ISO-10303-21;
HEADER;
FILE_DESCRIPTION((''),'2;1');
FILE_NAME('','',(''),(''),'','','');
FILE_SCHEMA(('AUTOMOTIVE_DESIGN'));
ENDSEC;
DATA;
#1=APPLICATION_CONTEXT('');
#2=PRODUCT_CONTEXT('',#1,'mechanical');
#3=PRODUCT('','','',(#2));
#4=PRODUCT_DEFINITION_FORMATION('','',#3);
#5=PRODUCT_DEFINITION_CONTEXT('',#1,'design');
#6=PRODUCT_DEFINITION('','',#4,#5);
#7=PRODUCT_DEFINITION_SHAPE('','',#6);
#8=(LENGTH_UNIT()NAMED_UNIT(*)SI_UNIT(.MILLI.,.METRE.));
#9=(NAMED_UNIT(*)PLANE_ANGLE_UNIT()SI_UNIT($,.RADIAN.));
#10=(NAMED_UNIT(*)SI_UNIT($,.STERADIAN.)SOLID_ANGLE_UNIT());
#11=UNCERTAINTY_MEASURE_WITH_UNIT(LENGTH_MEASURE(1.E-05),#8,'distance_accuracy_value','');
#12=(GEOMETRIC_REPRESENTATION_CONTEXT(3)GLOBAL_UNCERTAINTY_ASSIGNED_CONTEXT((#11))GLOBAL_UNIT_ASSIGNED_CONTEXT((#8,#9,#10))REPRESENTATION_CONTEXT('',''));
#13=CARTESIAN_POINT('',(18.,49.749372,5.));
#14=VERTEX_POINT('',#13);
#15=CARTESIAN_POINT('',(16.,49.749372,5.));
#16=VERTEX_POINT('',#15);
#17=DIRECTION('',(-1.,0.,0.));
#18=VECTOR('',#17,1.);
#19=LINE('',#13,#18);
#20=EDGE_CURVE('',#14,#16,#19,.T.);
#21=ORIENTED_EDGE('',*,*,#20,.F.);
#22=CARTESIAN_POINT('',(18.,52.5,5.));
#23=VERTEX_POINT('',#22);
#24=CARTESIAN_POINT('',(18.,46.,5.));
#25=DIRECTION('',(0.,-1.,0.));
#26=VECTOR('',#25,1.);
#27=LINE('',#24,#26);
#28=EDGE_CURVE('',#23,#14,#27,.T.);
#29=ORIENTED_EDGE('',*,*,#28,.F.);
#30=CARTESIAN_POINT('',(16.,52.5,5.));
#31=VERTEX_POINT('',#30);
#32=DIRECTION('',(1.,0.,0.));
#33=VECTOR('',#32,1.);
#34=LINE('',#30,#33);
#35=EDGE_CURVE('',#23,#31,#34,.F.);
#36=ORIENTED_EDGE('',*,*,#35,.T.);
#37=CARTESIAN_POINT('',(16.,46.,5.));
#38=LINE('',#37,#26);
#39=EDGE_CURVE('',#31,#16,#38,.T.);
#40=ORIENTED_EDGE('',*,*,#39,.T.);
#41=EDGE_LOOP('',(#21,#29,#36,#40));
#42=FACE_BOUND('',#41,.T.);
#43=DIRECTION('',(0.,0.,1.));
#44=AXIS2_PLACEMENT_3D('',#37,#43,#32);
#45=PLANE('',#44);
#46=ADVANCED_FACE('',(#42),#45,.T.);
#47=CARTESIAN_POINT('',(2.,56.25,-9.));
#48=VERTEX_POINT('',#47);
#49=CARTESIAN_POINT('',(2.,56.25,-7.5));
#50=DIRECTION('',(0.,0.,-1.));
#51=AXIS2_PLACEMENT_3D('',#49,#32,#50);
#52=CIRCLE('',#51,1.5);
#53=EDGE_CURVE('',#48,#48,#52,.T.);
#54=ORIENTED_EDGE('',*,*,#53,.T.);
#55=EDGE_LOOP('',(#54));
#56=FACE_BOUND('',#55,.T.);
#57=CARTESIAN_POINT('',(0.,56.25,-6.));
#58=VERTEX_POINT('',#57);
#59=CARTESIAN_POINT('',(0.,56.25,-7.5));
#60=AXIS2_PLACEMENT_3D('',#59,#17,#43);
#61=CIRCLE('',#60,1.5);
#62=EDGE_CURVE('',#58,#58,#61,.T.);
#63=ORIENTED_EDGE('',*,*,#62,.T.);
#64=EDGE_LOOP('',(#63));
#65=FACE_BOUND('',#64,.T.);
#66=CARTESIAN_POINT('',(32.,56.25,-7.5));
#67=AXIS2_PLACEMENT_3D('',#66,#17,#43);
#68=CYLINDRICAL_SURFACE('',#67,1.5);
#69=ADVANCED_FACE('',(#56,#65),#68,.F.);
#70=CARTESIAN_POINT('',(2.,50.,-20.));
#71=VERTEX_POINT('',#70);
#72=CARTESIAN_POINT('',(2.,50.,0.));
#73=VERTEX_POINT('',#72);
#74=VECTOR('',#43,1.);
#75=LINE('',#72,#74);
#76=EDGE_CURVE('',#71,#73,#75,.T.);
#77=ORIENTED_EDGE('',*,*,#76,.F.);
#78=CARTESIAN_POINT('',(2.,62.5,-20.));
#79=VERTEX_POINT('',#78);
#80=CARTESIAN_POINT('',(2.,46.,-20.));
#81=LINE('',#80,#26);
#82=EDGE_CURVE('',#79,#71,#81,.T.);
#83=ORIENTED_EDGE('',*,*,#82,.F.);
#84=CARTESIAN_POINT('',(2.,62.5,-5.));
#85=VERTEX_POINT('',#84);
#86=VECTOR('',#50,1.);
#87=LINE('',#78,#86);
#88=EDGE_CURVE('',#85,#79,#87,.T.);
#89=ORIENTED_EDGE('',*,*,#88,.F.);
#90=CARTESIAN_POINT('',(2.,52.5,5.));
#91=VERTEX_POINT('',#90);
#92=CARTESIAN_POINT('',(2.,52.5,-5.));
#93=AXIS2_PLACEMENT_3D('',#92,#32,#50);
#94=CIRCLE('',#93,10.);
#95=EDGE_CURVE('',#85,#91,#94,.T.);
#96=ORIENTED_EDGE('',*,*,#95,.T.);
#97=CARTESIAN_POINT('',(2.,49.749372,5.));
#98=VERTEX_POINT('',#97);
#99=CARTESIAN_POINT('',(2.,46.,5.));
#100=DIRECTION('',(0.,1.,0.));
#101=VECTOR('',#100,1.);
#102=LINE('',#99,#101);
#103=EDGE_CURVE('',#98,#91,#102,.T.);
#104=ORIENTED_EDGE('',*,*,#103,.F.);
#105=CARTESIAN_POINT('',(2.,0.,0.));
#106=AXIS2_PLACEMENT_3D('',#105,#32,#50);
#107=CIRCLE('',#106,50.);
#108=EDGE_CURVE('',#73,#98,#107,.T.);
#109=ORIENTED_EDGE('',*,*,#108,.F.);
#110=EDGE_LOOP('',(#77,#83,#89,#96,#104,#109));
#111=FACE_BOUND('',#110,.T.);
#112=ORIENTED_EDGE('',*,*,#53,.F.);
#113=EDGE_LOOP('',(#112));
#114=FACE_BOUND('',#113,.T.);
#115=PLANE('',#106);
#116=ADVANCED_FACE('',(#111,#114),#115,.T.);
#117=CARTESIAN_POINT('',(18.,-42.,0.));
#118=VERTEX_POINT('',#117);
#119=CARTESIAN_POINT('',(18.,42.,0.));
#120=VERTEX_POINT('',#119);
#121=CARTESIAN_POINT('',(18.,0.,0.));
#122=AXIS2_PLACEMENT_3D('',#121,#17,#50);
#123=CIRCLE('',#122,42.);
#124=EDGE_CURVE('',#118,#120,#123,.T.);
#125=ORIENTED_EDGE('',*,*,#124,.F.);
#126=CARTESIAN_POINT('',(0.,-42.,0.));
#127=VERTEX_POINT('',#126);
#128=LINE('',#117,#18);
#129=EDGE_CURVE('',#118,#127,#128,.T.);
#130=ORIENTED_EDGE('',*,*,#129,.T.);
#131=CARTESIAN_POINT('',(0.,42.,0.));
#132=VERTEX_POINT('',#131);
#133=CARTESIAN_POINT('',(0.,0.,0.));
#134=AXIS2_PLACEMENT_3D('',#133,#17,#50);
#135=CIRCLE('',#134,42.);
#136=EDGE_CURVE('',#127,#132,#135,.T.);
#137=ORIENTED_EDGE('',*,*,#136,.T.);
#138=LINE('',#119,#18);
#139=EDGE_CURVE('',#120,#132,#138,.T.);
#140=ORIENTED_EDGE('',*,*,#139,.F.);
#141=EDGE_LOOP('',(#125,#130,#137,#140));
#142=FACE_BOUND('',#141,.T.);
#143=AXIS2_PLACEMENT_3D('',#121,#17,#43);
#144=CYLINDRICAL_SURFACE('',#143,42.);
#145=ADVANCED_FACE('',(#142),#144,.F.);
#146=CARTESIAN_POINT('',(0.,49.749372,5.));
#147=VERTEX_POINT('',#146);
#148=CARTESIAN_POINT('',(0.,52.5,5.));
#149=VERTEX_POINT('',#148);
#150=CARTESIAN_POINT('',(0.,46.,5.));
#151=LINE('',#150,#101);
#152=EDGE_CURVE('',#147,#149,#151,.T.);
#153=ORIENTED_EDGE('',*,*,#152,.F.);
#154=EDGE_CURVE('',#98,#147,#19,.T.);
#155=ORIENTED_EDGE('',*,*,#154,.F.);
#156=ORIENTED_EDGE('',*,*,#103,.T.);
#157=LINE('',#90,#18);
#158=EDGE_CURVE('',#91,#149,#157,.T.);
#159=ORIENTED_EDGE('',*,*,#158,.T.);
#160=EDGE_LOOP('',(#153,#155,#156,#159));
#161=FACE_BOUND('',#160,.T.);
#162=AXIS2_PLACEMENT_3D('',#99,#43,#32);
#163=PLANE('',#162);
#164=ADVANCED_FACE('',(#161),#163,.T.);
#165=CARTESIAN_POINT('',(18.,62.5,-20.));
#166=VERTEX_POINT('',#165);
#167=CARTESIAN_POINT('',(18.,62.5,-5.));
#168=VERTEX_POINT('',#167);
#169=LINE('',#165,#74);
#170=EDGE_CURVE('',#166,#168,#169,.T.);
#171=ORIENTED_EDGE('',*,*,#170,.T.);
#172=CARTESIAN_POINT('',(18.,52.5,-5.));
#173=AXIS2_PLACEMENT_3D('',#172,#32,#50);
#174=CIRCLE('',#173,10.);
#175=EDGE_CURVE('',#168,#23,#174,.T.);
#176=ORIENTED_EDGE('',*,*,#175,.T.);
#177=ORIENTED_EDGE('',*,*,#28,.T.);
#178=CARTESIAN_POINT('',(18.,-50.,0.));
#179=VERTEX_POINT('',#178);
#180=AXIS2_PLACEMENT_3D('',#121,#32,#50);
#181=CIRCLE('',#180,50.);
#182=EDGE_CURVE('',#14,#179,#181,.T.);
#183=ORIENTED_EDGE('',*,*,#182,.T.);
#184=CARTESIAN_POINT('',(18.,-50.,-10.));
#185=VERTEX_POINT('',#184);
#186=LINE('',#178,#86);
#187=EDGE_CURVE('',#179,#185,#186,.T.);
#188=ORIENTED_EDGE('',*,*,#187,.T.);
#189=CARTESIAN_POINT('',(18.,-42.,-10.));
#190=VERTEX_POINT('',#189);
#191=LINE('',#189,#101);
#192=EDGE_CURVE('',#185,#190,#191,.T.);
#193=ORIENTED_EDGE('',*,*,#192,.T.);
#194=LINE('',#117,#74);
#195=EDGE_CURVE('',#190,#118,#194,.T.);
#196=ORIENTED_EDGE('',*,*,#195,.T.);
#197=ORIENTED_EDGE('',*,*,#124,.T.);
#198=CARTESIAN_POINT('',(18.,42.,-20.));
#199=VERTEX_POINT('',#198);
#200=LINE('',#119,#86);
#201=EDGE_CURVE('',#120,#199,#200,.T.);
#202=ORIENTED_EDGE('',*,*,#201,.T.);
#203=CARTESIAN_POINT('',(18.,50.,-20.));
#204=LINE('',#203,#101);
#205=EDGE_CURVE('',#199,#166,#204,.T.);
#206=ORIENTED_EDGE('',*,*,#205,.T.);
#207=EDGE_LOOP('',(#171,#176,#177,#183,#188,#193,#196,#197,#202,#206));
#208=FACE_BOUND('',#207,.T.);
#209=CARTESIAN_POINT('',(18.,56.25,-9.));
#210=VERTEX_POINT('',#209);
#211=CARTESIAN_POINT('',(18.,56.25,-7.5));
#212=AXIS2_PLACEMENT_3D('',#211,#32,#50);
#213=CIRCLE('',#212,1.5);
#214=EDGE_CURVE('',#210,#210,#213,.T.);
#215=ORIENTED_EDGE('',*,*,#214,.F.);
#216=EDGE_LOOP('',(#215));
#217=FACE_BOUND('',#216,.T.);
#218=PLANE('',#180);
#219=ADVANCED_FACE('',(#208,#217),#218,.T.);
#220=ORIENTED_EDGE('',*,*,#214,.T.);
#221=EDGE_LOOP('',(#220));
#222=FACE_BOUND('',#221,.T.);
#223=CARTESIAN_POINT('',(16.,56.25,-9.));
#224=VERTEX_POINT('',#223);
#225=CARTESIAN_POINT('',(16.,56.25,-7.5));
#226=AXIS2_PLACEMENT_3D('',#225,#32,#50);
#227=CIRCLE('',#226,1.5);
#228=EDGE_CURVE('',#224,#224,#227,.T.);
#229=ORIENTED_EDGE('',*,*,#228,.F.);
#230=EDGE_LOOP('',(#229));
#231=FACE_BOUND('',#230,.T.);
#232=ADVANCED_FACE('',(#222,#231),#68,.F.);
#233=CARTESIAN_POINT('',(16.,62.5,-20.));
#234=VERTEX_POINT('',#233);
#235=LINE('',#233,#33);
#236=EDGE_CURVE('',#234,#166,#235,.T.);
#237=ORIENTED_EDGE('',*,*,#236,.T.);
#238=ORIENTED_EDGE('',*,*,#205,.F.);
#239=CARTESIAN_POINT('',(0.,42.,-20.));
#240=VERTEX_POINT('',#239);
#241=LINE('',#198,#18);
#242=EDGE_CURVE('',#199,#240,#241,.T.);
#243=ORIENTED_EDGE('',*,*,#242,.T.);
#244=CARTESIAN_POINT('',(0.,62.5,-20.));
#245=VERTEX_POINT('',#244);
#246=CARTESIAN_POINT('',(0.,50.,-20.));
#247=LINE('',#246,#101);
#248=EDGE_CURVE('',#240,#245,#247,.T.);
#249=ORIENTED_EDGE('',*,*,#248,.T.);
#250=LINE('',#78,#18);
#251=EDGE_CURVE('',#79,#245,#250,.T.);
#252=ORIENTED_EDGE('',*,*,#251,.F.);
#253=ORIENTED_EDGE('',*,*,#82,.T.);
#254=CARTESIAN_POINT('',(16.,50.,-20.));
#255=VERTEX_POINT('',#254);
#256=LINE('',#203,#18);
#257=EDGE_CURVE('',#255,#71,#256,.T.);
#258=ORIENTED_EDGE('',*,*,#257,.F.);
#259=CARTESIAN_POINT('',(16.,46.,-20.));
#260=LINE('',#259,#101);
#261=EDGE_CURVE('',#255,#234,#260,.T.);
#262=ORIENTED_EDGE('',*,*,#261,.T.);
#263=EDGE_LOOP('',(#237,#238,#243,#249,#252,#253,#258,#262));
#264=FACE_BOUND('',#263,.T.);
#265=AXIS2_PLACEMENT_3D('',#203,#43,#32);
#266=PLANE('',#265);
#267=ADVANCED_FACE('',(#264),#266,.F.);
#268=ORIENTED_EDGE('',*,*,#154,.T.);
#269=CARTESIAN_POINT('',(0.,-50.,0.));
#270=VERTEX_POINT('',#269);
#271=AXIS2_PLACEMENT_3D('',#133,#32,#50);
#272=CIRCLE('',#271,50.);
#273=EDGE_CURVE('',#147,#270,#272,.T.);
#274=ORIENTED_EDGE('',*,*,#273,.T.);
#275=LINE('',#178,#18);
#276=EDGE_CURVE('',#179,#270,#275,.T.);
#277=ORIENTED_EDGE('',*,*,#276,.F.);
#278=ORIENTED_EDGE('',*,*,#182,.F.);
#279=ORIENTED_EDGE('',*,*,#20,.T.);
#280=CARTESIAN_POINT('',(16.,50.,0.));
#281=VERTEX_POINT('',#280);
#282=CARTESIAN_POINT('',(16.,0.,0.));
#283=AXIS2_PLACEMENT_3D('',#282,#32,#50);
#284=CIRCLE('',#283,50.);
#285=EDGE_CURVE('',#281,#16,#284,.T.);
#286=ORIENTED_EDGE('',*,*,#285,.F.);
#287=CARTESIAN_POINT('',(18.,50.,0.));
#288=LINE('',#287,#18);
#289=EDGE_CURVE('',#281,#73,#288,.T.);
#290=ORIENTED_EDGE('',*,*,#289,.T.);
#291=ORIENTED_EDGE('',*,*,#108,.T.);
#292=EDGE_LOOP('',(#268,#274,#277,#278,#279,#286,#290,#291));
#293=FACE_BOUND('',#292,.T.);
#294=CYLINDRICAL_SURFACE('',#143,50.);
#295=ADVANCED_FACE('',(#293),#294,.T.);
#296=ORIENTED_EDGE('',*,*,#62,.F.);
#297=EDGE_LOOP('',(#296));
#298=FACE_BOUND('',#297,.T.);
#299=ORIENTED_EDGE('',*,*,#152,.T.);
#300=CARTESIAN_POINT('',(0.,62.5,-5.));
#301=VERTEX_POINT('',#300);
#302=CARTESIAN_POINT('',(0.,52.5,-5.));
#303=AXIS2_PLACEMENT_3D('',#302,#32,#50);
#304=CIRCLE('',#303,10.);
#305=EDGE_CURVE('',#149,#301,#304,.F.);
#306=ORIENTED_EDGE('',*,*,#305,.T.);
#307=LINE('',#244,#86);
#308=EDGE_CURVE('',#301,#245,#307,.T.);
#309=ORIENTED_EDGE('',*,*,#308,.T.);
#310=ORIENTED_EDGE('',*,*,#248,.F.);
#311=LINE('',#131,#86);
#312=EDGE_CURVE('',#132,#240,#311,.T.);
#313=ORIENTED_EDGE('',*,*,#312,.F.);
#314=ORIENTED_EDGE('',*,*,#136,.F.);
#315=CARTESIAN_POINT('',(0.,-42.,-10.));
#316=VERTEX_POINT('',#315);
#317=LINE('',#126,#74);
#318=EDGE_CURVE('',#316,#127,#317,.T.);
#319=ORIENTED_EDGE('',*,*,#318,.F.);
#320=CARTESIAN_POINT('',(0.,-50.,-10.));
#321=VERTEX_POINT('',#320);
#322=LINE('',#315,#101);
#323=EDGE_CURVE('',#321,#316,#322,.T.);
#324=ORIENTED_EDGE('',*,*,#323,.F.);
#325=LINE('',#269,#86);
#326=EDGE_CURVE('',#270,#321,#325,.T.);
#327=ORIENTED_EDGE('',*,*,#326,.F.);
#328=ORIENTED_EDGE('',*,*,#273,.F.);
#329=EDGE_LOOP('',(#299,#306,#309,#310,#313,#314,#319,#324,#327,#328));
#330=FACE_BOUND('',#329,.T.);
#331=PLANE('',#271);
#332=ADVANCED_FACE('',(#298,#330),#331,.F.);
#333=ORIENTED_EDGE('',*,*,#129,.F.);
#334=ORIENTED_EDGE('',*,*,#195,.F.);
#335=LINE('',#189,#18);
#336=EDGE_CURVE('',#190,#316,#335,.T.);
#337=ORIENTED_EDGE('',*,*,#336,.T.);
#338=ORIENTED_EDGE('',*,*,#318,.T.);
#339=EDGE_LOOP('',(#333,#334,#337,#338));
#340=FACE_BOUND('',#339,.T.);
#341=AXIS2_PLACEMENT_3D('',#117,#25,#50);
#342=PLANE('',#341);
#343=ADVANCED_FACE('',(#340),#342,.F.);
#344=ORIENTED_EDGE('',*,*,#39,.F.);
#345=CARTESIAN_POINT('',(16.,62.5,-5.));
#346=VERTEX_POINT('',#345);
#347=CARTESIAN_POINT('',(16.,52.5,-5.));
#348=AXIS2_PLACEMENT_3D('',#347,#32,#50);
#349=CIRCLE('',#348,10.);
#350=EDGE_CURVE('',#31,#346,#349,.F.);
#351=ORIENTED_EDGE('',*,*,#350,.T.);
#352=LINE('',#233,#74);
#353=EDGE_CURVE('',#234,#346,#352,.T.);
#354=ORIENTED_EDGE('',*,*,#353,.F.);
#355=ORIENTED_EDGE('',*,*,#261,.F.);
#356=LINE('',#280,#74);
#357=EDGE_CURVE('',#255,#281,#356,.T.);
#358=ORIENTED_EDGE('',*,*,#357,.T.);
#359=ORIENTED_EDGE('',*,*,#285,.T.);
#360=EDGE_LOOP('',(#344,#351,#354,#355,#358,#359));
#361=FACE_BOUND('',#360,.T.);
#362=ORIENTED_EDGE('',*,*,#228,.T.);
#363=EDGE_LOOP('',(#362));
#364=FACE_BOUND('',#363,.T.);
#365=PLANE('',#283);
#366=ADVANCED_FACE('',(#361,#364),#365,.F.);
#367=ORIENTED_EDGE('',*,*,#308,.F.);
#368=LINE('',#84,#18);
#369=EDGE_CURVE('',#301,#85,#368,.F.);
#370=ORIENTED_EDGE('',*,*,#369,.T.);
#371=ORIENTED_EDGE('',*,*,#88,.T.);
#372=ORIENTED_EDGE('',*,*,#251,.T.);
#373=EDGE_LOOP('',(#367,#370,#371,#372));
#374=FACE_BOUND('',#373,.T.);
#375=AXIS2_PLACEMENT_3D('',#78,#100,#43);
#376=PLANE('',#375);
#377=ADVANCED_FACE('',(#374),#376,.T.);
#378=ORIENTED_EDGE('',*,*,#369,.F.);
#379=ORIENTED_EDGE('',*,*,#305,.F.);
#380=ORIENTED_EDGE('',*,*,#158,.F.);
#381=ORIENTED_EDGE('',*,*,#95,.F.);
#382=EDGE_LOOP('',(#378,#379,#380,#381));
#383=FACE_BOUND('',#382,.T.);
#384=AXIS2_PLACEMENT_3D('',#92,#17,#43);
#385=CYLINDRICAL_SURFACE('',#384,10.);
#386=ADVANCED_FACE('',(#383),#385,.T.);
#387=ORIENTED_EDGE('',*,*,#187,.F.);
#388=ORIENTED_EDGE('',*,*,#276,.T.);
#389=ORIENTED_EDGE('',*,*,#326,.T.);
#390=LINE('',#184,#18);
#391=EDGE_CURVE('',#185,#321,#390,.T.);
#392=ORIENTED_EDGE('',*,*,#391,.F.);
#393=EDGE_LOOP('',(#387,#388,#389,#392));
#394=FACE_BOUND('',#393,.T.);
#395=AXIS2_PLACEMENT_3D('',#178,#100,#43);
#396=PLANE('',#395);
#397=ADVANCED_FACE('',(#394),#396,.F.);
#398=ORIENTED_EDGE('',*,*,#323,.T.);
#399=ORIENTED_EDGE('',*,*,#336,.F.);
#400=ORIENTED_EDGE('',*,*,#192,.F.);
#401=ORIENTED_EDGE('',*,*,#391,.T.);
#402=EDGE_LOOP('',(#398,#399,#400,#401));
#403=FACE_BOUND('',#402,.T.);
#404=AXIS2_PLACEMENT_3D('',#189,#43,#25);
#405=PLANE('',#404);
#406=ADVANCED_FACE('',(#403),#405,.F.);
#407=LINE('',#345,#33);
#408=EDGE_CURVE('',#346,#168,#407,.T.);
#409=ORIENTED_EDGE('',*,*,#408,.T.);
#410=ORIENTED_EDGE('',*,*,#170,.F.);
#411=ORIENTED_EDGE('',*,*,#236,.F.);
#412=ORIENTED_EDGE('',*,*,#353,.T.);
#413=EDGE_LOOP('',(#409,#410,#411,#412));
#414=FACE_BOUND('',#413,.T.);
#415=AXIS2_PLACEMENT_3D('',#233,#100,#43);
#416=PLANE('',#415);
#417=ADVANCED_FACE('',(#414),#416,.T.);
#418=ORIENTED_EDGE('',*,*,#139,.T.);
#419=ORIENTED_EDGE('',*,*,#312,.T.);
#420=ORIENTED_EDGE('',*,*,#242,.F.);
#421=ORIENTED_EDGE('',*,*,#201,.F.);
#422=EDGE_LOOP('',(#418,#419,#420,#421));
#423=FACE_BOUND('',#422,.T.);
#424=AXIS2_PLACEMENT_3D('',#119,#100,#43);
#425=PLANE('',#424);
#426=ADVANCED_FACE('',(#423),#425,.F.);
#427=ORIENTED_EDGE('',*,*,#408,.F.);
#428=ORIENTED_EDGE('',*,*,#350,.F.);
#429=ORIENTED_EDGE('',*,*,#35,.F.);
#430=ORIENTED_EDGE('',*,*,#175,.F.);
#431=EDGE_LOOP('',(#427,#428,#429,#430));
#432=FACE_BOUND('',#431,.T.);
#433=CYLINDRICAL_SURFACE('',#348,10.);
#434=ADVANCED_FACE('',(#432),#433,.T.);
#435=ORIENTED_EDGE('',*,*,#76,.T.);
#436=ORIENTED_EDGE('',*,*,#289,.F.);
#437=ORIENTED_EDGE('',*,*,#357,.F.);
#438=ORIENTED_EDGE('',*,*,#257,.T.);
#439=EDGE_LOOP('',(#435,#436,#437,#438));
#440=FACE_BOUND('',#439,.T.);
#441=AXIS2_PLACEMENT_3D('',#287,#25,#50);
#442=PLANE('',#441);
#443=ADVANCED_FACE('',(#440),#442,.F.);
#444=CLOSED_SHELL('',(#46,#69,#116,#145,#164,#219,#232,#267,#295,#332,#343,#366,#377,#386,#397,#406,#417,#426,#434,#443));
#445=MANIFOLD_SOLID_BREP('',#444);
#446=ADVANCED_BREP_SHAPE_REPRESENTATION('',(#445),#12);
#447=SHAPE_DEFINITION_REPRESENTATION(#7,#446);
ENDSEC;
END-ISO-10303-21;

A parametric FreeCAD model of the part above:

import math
import FreeCAD as App
import Part
import Sketcher

V = App.Vector
Q = App.Units.Quantity


def edges_at(feature, points):
    """Names of the edges that pass closest to the given points."""
    edges = feature.Shape.Edges
    near = lambda p: min(range(len(edges)), key=lambda i: edges[i].distToShape(Part.Vertex(*p))[0])
    return sorted({f"Edge{near(p) + 1}" for p in points})

doc = App.newDocument("Part")
body = doc.addObject("PartDesign::Body", "Body")

# Sketch on YZ plane
sketch1 = body.newObject("Sketcher::SketchObject", "Sketch")
sketch1.AttachmentSupport = (doc.getObject("YZ_Plane"), [""])
sketch1.MapMode = "FlatFace"
sketch1.addGeometry([
    Part.LineSegment(V(-42, -10, 0), V(-42, 0, 0)),  # 0
    Part.ArcOfCircle(Part.Circle(V(0, 0, 0), V(0, 0, 1), 42), math.radians(0), math.radians(180)),  # 1
    Part.LineSegment(V(42, 0, 0), V(42, -20, 0)),  # 2
    Part.LineSegment(V(42, -20, 0), V(50, -20, 0)),  # 3
    Part.LineSegment(V(50, -20, 0), V(50, 0, 0)),  # 4
    Part.ArcOfCircle(Part.Circle(V(0, 0, 0), V(0, 0, 1), 50), math.radians(0), math.radians(180)),  # 5
    Part.LineSegment(V(-50, 0, 0), V(-50, -10, 0)),  # 6
    Part.LineSegment(V(-50, -10, 0), V(-42, -10, 0)),  # 7
], False)
sketch1.addConstraint([
    Sketcher.Constraint("Tangent", 0, 2, 1, 2),
    Sketcher.Constraint("Tangent", 1, 1, 2, 1),
    Sketcher.Constraint("Coincident", 2, 2, 3, 1),
    Sketcher.Constraint("Coincident", 3, 2, 4, 1),
    Sketcher.Constraint("Tangent", 4, 2, 5, 1),
    Sketcher.Constraint("Tangent", 5, 2, 6, 1),
    Sketcher.Constraint("Coincident", 6, 2, 7, 1),
    Sketcher.Constraint("Coincident", 7, 2, 0, 1),
    Sketcher.Constraint("Vertical", 0),
    Sketcher.Constraint("Vertical", 2),
    Sketcher.Constraint("Horizontal", 3),
    Sketcher.Constraint("Vertical", 4),
    Sketcher.Constraint("Vertical", 6),
    Sketcher.Constraint("Horizontal", 7),
    Sketcher.Constraint("Coincident", 1, 3, -1, 1),
    Sketcher.Constraint("Coincident", 5, 3, -1, 1),
    Sketcher.Constraint("Radius", 1, Q("42 mm")),
    Sketcher.Constraint("Radius", 5, Q("50 mm")),
    Sketcher.Constraint("DistanceY", 0, 1, 0, 2, Q("10 mm")),
    Sketcher.Constraint("DistanceY", 2, 2, 2, 1, Q("20 mm")),
])
pad1 = body.newObject("PartDesign::Pad", "Pad")
pad1.Profile = sketch1
pad1.Length = 18

# Sketch on YZ plane
sketch2 = body.newObject("Sketcher::SketchObject", "Sketch001")
sketch2.AttachmentSupport = (doc.getObject("YZ_Plane"), [""])
sketch2.MapMode = "FlatFace"
sketch2.AttachmentOffset = App.Placement(V(0, 0, 18), App.Rotation())
sketch2.addGeometry([
    Part.LineSegment(V(62, 5, 0), V(46, 5, 0)),
    Part.LineSegment(V(46, 5, 0), V(46, -20, 0)),
    Part.LineSegment(V(46, -20, 0), V(62, -20, 0)),
    Part.LineSegment(V(62, -20, 0), V(62, 5, 0)),
], False)
sketch2.addConstraint([
    Sketcher.Constraint("Coincident", 0, 2, 1, 1),
    Sketcher.Constraint("Coincident", 1, 2, 2, 1),
    Sketcher.Constraint("Coincident", 2, 2, 3, 1),
    Sketcher.Constraint("Coincident", 3, 2, 0, 1),
    Sketcher.Constraint("Horizontal", 0),
    Sketcher.Constraint("Vertical", 1),
    Sketcher.Constraint("Horizontal", 2),
    Sketcher.Constraint("Vertical", 3),
    Sketcher.Constraint("DistanceY", 1, 2, 1, 1, Q("25 mm")),
    Sketcher.Constraint("DistanceX", 0, 2, 0, 1, Q("16.5 mm")),
    Sketcher.Constraint("DistanceX", -1, 1, 0, 2, Q("46 mm")),
    Sketcher.Constraint("DistanceY", -1, 1, 0, 2, Q("5 mm")),
])
pad2 = body.newObject("PartDesign::Pad", "Pad001")
pad2.Profile = sketch2
pad2.Length = 2
pad2.Reversed = True

# Sketch on YZ plane
sketch3 = body.newObject("Sketcher::SketchObject", "Sketch002")
sketch3.AttachmentSupport = (doc.getObject("YZ_Plane"), [""])
sketch3.MapMode = "FlatFace"
sketch3.addGeometry([
    Part.LineSegment(V(62, -20, 0), V(46, -20, 0)),
    Part.LineSegment(V(46, -20, 0), V(46, 5, 0)),
    Part.LineSegment(V(46, 5, 0), V(62, 5, 0)),
    Part.LineSegment(V(62, 5, 0), V(62, -20, 0)),
], False)
sketch3.addConstraint([
    Sketcher.Constraint("Coincident", 0, 2, 1, 1),
    Sketcher.Constraint("Coincident", 1, 2, 2, 1),
    Sketcher.Constraint("Coincident", 2, 2, 3, 1),
    Sketcher.Constraint("Coincident", 3, 2, 0, 1),
    Sketcher.Constraint("Horizontal", 0),
    Sketcher.Constraint("Vertical", 1),
    Sketcher.Constraint("Horizontal", 2),
    Sketcher.Constraint("Vertical", 3),
    Sketcher.Constraint("DistanceY", 1, 1, 1, 2, Q("25 mm")),
    Sketcher.Constraint("DistanceX", 0, 2, 0, 1, Q("16.5 mm")),
    Sketcher.Constraint("DistanceX", -1, 1, 0, 2, Q("46 mm")),
    Sketcher.Constraint("DistanceY", 0, 2, -1, 1, Q("20 mm")),
])
pad3 = body.newObject("PartDesign::Pad", "Pad002")
pad3.Profile = sketch3
pad3.Length = 2

# Sketch on YZ plane
sketch4 = body.newObject("Sketcher::SketchObject", "Sketch003")
sketch4.AttachmentSupport = (doc.getObject("YZ_Plane"), [""])
sketch4.MapMode = "FlatFace"
sketch4.addGeometry(Part.Circle(V(56.2, -7.5, 0), V(0, 0, 1), 1.5), False)
sketch4.addConstraint([
    Sketcher.Constraint("Diameter", 0, Q("3 mm")),
    Sketcher.Constraint("DistanceY", 0, 3, -1, 1, Q("7.5 mm")),
    Sketcher.Constraint("DistanceX", -1, 1, 0, 3, Q("56.25 mm")),
])
pocket1 = body.newObject("PartDesign::Pocket", "Pocket")
pocket1.Profile = sketch4
pocket1.Length = 32
pocket1.Reversed = True
doc.recompute()

fillet = body.newObject("PartDesign::Fillet", "Fillet")
fillet.Base = (pocket1, edges_at(pocket1, [(17, 62.5, 5), (1, 62.5, 5)]))
fillet.Radius = 10

doc.recompute()
